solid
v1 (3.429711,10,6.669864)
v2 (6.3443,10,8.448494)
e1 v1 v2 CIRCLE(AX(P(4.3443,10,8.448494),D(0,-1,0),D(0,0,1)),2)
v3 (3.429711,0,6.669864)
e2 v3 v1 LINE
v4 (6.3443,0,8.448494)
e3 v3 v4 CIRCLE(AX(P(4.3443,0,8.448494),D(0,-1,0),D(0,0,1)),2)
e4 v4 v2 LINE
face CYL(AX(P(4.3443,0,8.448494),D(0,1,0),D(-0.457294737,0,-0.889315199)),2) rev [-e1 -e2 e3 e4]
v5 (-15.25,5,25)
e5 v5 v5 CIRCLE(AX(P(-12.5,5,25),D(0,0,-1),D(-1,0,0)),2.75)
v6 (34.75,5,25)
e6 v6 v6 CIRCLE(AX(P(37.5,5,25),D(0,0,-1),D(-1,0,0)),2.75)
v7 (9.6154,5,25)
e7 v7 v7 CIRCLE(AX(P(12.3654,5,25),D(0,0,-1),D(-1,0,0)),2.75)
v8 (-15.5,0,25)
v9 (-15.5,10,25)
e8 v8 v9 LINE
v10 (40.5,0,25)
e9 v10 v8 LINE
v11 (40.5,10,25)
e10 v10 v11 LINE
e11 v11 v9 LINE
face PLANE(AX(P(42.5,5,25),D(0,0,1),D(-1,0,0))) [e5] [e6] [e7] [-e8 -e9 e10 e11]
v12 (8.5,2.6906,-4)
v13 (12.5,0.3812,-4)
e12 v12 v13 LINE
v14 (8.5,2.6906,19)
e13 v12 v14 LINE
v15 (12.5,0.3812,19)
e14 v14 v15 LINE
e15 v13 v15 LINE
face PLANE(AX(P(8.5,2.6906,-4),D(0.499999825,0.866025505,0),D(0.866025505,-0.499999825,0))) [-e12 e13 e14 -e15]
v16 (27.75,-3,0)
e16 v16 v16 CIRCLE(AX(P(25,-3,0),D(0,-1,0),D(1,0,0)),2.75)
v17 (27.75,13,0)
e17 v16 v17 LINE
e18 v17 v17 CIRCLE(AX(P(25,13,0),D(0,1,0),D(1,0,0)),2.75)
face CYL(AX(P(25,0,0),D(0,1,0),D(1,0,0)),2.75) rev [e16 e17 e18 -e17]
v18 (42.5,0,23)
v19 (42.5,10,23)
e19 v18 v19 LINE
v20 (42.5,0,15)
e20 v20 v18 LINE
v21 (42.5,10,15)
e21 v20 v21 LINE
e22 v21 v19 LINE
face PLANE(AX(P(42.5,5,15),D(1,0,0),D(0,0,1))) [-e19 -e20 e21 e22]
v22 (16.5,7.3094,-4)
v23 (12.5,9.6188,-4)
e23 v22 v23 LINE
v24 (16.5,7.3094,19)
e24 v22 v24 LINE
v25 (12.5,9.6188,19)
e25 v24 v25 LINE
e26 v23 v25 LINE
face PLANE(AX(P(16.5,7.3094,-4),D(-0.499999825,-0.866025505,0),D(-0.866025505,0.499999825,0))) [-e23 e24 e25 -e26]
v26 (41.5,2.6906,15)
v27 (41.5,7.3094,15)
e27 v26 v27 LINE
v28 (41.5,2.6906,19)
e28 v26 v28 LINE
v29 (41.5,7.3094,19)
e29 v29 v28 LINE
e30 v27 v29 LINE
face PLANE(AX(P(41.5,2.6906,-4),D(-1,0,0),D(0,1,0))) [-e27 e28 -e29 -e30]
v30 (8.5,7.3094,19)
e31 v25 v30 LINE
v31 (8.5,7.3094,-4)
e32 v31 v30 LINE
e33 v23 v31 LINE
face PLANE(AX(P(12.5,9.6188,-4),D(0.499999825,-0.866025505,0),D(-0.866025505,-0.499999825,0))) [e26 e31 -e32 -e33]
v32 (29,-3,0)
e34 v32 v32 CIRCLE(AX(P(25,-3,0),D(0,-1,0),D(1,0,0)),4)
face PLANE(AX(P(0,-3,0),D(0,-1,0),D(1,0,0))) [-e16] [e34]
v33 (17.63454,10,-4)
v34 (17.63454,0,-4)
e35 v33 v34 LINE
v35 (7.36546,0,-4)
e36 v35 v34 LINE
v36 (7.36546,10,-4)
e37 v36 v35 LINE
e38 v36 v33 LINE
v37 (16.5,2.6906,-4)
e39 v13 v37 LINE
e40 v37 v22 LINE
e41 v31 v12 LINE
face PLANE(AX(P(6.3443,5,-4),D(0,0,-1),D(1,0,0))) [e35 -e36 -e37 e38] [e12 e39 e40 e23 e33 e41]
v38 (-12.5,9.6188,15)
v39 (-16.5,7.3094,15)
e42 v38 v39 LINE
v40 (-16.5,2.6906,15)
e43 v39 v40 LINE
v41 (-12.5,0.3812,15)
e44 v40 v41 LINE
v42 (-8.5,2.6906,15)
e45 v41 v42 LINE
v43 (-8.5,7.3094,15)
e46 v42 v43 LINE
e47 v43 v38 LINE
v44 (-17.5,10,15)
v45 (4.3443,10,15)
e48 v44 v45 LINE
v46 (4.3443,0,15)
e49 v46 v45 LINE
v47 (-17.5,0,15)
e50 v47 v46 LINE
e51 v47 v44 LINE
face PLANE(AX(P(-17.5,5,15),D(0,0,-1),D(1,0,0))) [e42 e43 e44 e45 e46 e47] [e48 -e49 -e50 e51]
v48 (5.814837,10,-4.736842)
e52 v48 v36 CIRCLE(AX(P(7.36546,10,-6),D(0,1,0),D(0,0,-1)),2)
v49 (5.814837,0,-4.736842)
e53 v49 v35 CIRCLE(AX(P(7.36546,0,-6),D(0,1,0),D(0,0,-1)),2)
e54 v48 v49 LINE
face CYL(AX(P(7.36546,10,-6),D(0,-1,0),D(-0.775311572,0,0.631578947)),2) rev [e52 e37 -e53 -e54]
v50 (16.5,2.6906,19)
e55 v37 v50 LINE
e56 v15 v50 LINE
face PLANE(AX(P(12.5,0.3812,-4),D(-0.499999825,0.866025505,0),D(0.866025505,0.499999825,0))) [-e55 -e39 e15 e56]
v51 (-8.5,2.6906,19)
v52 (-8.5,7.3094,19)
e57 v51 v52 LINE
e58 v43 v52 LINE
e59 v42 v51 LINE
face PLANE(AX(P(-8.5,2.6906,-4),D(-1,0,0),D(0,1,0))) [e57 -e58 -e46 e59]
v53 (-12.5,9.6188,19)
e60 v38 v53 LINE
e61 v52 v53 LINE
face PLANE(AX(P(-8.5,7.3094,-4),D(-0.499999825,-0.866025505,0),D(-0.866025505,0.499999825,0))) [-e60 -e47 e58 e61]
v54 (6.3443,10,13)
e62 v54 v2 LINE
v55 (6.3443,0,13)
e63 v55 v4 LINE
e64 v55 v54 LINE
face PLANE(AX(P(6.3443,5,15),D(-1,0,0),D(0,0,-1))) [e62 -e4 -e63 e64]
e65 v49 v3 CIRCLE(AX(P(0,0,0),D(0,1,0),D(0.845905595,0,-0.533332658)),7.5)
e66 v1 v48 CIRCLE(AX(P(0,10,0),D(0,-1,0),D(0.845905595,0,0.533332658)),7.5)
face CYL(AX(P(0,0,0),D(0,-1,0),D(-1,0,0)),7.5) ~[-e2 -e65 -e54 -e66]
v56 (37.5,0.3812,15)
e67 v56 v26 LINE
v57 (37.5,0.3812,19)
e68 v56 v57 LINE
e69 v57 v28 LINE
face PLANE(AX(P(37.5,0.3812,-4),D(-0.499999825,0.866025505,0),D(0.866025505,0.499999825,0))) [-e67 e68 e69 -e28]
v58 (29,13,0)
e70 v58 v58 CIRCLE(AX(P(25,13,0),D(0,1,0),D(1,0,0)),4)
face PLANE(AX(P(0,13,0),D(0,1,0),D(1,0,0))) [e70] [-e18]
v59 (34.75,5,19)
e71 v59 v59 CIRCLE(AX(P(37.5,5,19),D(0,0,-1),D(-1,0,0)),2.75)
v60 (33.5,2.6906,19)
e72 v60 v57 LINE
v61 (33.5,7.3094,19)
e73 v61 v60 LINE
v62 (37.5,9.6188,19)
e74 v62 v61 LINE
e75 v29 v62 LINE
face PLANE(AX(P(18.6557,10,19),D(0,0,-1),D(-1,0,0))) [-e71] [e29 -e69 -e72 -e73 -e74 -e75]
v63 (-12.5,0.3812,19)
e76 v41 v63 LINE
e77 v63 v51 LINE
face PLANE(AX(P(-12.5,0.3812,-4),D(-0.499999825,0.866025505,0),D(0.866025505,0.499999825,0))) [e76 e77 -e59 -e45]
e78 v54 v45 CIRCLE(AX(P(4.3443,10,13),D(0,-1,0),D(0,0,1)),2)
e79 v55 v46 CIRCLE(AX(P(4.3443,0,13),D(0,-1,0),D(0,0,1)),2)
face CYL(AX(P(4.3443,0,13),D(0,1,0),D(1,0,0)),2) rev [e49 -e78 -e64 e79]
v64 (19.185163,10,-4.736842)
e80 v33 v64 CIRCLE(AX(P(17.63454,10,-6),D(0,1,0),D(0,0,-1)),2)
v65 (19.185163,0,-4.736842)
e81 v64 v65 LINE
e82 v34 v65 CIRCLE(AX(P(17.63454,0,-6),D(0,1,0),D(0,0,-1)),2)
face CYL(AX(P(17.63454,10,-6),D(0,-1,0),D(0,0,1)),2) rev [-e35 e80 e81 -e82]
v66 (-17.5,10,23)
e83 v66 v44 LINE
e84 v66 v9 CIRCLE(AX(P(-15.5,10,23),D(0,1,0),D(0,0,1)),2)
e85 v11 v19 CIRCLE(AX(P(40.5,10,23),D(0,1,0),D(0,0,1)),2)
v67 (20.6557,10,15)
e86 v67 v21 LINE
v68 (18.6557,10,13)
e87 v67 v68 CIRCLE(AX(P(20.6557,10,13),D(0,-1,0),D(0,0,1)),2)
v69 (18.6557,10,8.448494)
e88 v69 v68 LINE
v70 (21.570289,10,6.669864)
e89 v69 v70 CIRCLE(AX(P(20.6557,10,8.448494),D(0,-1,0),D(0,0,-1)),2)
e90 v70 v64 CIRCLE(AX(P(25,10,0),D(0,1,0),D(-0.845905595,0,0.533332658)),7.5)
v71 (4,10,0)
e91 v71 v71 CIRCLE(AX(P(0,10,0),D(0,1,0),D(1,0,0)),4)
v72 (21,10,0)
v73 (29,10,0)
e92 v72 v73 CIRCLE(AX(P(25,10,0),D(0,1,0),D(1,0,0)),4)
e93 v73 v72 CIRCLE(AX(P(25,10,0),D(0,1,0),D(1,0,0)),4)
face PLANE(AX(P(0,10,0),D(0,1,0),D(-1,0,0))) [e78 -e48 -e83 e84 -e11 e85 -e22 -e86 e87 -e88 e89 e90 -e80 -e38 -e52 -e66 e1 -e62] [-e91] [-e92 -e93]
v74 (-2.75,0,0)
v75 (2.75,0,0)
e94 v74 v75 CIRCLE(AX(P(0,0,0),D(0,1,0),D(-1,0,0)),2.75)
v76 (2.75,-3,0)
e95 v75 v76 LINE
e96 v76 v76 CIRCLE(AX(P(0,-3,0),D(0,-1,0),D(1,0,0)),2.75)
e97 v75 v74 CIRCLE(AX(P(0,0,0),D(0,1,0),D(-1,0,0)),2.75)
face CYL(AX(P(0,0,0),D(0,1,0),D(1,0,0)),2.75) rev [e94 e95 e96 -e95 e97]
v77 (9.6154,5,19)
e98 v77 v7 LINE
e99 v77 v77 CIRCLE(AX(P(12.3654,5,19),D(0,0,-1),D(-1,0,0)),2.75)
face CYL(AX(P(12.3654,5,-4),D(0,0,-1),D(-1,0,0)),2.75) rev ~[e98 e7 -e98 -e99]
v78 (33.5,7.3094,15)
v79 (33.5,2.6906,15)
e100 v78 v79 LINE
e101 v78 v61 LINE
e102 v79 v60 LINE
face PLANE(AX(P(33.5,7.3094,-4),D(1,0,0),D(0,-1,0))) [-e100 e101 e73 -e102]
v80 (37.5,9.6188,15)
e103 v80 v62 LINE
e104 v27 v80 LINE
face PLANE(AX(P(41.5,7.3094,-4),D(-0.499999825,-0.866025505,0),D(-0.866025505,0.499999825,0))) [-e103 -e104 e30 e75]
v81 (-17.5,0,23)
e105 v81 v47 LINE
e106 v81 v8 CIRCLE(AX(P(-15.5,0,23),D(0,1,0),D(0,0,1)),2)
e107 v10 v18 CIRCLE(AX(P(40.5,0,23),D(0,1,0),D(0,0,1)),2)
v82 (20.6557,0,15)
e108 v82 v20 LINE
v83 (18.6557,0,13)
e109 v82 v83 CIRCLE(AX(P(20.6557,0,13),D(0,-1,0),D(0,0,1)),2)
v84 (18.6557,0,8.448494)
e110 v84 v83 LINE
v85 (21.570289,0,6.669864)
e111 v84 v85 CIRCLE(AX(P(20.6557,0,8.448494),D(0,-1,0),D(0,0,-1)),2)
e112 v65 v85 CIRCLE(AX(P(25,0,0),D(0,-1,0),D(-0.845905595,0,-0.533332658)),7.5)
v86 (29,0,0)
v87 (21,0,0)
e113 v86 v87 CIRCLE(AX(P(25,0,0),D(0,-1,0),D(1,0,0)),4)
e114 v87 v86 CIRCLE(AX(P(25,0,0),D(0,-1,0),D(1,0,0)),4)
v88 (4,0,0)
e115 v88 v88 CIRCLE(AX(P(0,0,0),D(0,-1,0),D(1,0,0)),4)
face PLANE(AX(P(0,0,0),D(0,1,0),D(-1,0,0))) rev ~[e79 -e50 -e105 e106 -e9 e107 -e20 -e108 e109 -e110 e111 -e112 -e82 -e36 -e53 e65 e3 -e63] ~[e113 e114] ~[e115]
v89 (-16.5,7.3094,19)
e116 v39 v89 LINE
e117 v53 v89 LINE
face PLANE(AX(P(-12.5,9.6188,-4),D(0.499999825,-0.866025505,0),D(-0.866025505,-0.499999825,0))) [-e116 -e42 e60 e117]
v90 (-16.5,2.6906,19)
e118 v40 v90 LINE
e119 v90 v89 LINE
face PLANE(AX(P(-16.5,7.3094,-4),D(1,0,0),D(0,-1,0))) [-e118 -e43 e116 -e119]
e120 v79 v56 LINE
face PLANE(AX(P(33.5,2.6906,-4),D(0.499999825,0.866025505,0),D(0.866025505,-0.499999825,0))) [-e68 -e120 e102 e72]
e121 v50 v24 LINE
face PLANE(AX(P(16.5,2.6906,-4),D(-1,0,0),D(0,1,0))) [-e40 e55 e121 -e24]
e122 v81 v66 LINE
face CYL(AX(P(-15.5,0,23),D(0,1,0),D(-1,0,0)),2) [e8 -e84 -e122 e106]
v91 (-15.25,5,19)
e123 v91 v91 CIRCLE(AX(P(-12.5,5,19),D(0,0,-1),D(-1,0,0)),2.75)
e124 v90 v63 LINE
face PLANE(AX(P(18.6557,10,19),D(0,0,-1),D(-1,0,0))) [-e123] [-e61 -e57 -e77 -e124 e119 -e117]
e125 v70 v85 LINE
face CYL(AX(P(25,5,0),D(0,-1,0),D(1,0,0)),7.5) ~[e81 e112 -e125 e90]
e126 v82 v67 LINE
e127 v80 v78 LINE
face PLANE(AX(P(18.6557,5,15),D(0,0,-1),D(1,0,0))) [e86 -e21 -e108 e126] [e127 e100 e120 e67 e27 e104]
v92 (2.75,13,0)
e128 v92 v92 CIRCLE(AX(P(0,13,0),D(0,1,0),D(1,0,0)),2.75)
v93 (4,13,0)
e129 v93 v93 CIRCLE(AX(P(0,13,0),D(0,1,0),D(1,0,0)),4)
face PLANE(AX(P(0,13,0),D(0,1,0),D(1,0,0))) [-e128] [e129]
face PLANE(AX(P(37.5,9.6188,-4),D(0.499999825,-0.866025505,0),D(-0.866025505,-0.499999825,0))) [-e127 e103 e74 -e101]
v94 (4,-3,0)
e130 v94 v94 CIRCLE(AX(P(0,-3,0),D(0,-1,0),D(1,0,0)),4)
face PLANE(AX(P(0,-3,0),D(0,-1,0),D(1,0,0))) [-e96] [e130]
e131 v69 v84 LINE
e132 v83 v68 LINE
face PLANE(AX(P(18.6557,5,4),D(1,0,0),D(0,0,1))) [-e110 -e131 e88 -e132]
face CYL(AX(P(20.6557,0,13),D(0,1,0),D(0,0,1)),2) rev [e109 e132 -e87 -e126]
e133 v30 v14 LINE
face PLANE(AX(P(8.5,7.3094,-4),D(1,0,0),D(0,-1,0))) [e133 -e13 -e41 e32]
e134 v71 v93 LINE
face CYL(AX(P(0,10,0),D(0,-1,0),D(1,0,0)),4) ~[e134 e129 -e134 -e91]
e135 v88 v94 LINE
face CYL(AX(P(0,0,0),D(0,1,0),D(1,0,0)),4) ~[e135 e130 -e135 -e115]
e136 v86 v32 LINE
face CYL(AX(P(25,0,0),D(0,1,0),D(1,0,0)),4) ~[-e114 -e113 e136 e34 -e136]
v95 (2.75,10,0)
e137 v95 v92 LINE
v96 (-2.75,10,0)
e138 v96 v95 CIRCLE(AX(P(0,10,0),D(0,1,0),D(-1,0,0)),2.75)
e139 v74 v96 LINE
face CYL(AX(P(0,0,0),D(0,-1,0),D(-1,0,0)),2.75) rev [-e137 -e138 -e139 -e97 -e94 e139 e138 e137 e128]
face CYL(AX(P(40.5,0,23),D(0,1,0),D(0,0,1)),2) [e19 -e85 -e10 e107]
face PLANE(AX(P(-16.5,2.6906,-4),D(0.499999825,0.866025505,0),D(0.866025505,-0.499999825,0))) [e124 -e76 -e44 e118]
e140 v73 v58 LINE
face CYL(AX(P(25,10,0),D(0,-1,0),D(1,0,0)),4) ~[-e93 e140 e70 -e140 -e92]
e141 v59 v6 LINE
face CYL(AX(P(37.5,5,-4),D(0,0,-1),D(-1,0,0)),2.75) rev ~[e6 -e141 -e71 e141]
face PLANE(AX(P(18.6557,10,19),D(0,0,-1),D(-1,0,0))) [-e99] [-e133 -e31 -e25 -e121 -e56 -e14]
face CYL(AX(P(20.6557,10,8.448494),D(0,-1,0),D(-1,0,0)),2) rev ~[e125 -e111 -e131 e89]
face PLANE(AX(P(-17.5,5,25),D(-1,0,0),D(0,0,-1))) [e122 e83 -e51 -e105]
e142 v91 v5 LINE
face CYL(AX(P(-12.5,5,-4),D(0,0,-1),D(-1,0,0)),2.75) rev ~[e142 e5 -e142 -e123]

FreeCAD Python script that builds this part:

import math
import FreeCAD as App
import Part
import Sketcher
Q = App.Units.Quantity


def edges_at(feature, points):
    """Names of the edges that pass closest to the given points."""
    edges = feature.Shape.Edges
    near = lambda p: min(range(len(edges)), key=lambda i: edges[i].distToShape(Part.Vertex(*p))[0])
    return sorted({f"Edge{near(p) + 1}" for p in points})


def add_polygon(sketch, points):
    """Adds a closed chain of lines whose ends are joined by coincident constraints."""
    first, n = sketch.GeometryCount, len(points)
    for a, b in zip(points, points[1:] + points[:1]):
        sketch.addGeometry(Part.LineSegment(App.Vector(*a, 0), App.Vector(*b, 0)), False)
    for i in range(n):
        sketch.addConstraint(Sketcher.Constraint("Coincident", first + i, 2, first + (i + 1) % n, 1))

doc = App.newDocument("Part")
body = doc.addObject("PartDesign::Body", "Body")

# Sketch on XZ plane
sketch1 = body.newObject("Sketcher::SketchObject", "Sketch")
sketch1.AttachmentSupport = (doc.getObject("XZ_Plane"), [""])
sketch1.MapMode = "FlatFace"
sketch1.addGeometry([
    Part.Circle(App.Vector(0, 0, 0), App.Vector(0, 0, 1), 7.5),
    Part.Circle(App.Vector(0, 0, 0), App.Vector(0, 0, 1), 2.8),
], False)
sketch1.addConstraint([
    Sketcher.Constraint("Coincident", 0, 3, -1, 1),
    Sketcher.Constraint("Coincident", 1, 3, -1, 1),
    Sketcher.Constraint("Diameter", 0, 15.0),
    Sketcher.Constraint("Diameter", 1, 5.5),
])
pad1 = body.newObject("PartDesign::Pad", "Pad")
pad1.Profile = sketch1
pad1.Length = 10
pad1.Reversed = True

# Sketch on XZ plane
sketch2 = body.newObject("Sketcher::SketchObject", "Sketch001")
sketch2.AttachmentSupport = (doc.getObject("XZ_Plane"), [""])
sketch2.MapMode = "FlatFace"
sketch2.AttachmentOffset = App.Placement(App.Vector(0, 0, -5), App.Rotation())
sketch2.addGeometry([
    Part.ArcOfCircle(Part.Circle(App.Vector(0, 0, 0), App.Vector(0, 0, 1), 7.5), math.radians(-32), math.radians(32)),  # 0
    Part.LineSegment(App.Vector(6.3, 4, 0), App.Vector(6.3, 15, 0)),  # 1
    Part.LineSegment(App.Vector(6.3, 15, 0), App.Vector(-17.5, 15, 0)),  # 2
    Part.LineSegment(App.Vector(-17.5, 15, 0), App.Vector(-17.5, 25, 0)),  # 3
    Part.LineSegment(App.Vector(-17.5, 25, 0), App.Vector(42.5, 25, 0)),  # 4
    Part.LineSegment(App.Vector(42.5, 25, 0), App.Vector(42.5, 15, 0)),  # 5
    Part.LineSegment(App.Vector(42.5, 15, 0), App.Vector(18.7, 15, 0)),  # 6
    Part.LineSegment(App.Vector(18.7, 15, 0), App.Vector(18.7, 4, 0)),  # 7
    Part.ArcOfCircle(Part.Circle(App.Vector(25, 0, 0), App.Vector(0, 0, 1), 7.5), math.radians(-148), math.radians(148)),  # 8
    Part.LineSegment(App.Vector(18.7, -4, 0), App.Vector(6.3, -4, 0)),  # 9
    Part.Circle(App.Vector(25, 0, 0), App.Vector(0, 0, 1), 2.8),  # 10
], False)
sketch2.addConstraint([
    Sketcher.Constraint("Coincident", 0, 2, 1, 1),
    Sketcher.Constraint("Coincident", 1, 2, 2, 1),
    Sketcher.Constraint("Coincident", 2, 2, 3, 1),
    Sketcher.Constraint("Coincident", 3, 2, 4, 1),
    Sketcher.Constraint("Coincident", 4, 2, 5, 1),
    Sketcher.Constraint("Coincident", 5, 2, 6, 1),
    Sketcher.Constraint("Coincident", 6, 2, 7, 1),
    Sketcher.Constraint("Coincident", 7, 2, 8, 2),
    Sketcher.Constraint("Coincident", 8, 1, 9, 1),
    Sketcher.Constraint("Coincident", 9, 2, 0, 1),
    Sketcher.Constraint("Vertical", 1),
    Sketcher.Constraint("Horizontal", 2),
    Sketcher.Constraint("Vertical", 3),
    Sketcher.Constraint("Horizontal", 4),
    Sketcher.Constraint("Vertical", 5),
    Sketcher.Constraint("Horizontal", 6),
    Sketcher.Constraint("Vertical", 7),
    Sketcher.Constraint("Horizontal", 9),
    Sketcher.Constraint("Coincident", 0, 3, -1, 1),
    Sketcher.Constraint("Coincident", 10, 3, 8, 3),
    Sketcher.Constraint("Equal", 0, 8),
    Sketcher.Constraint("Symmetric", 7, 2, 8, 1, -1),
    Sketcher.Constraint("Horizontal", 2, 2, 5, 2),
    Sketcher.Constraint("Horizontal", 0, 2, 7, 2),
    Sketcher.Constraint("Equal", 2, 6),
    Sketcher.Constraint("Diameter", 10, 5.5),
    Sketcher.Constraint("Radius", 0, 7.5),
    Sketcher.Constraint("DistanceX", 4, 1, 4, 2, 60.0),
    Sketcher.Constraint("DistanceY", 3, 1, 3, 2, 10.0),
    Sketcher.Constraint("DistanceX", -1, 1, 8, 3, 25.0),
    Sketcher.Constraint("DistanceY", -1, 1, 1, 2, 15.0),
    Sketcher.Constraint("DistanceY", 8, 1, 7, 2, 8.0),
])
pad2 = body.newObject("PartDesign::Pad", "Pad001")
pad2.Profile = sketch2
pad2.Length = 10
pad2.Midplane = True

# Sketch on XY plane
sketch3 = body.newObject("Sketcher::SketchObject", "Sketch002")
sketch3.AttachmentSupport = (doc.getObject("XY_Plane"), [""])
sketch3.MapMode = "FlatFace"
sketch3.AttachmentOffset = App.Placement(App.Vector(0, 0, -4), App.Rotation())
add_polygon(sketch3, [(16.5, 2.7), (12.5, 0.4), (8.5, 2.7), (8.5, 7.3), (12.5, 9.6), (16.5, 7.3)])  # lines 0-5
add_polygon(sketch3, [(-8.5, 2.7), (-12.5, 0.4), (-16.5, 2.7), (-16.5, 7.3), (-12.5, 9.6), (-8.5, 7.3)])  # lines 6-11
add_polygon(sketch3, [(41.5, 2.7), (37.5, 0.4), (33.5, 2.7), (33.5, 7.3), (37.5, 9.6), (41.5, 7.3)])  # lines 12-17
sketch3.addConstraint([
    Sketcher.Constraint("Vertical", 2),
    Sketcher.Constraint("Vertical", 5),
    Sketcher.Constraint("Vertical", 8),
    Sketcher.Constraint("Vertical", 11),
    Sketcher.Constraint("Vertical", 14),
    Sketcher.Constraint("Vertical", 17),
    Sketcher.Constraint("Symmetric", 0, 2, 6, 2, -2),
    Sketcher.Constraint("Symmetric", 5, 2, 7, 2, -2),
    Sketcher.Constraint("Symmetric", 3, 2, 9, 2, -2),
    Sketcher.Constraint("Symmetric", 2, 2, 10, 2, -2),
    Sketcher.Constraint("Parallel", 0, 3),
    Sketcher.Constraint("Parallel", 1, 4),
    Sketcher.Constraint("Parallel", 3, 6),
    Sketcher.Constraint("Parallel", 4, 7),
    Sketcher.Constraint("Parallel", 6, 9),
    Sketcher.Constraint("Parallel", 9, 12),
    Sketcher.Constraint("Parallel", 10, 13),
    Sketcher.Constraint("Parallel", 12, 15),
    Sketcher.Constraint("Parallel", 13, 16),
    Sketcher.Constraint("Horizontal", 2, 2, 4, 2),
    Sketcher.Constraint("Horizontal", 1, 2, 5, 2),
    Sketcher.Constraint("Horizontal", 6, 2, 12, 2),
    Sketcher.Constraint("Horizontal", 11, 2, 13, 2),
    Sketcher.Constraint("Horizontal", 10, 2, 14, 2),
    Sketcher.Constraint("Horizontal", 9, 2, 15, 2),
    Sketcher.Constraint("Horizontal", 14, 2, 16, 2),
    Sketcher.Constraint("DistanceX", 2, 2, 4, 2, 8.0),
    Sketcher.Constraint("Angle", 0, Q("-150 deg")),
    Sketcher.Constraint("DistanceX", 6, 2, 1, 2, 21.0),
    Sketcher.Constraint("DistanceX", 5, 2, 12, 2, 21.0),
    Sketcher.Constraint("DistanceY", 2, 1, 2, 2, 4.6188),
    Sketcher.Constraint("DistanceY", -1, 1, 0, 2, 0.3812),
])
pocket1 = body.newObject("PartDesign::Pocket", "Pocket")
pocket1.Profile = sketch3
pocket1.Length = 23
pocket1.Reversed = True
doc.recompute()

fillet = body.newObject("PartDesign::Fillet", "Fillet")
fillet.Base = (pocket1, edges_at(pocket1, [
    (18.656, 5, 15),
    (6.344, 5, 15),
    (-17.5, 5, 25),
    (42.5, 5, 25),
    (6.344, 5, -4),
    (18.656, 5, -4),
    (18.656, 5, 4),
    (6.344, 5, 4),
]))
fillet.Radius = 2

# Sketch on XY plane
sketch4 = body.newObject("Sketcher::SketchObject", "Sketch003")
sketch4.AttachmentSupport = (doc.getObject("XY_Plane"), [""])
sketch4.MapMode = "FlatFace"
sketch4.AttachmentOffset = App.Placement(App.Vector(0, 0, -4), App.Rotation())
sketch4.addGeometry([
    Part.Circle(App.Vector(12.4, 5, 0), App.Vector(0, 0, 1), 2.8),
    Part.Circle(App.Vector(37.5, 5, 0), App.Vector(0, 0, 1), 2.8),
    Part.Circle(App.Vector(-12.5, 5, 0), App.Vector(0, 0, 1), 2.8),
], False)
sketch4.addConstraint([
    Sketcher.Constraint("Equal", 0, 1),
    Sketcher.Constraint("Equal", 1, 2),
    Sketcher.Constraint("Horizontal", 0, 3, 1, 3),
    Sketcher.Constraint("Horizontal", 1, 3, 2, 3),
    Sketcher.Constraint("Diameter", 0, 5.5),
    Sketcher.Constraint("DistanceY", -1, 1, 0, 3, 5.0),
    Sketcher.Constraint("DistanceX", 2, 3, 1, 3, 50.0),
    Sketcher.Constraint("DistanceX", -1, 1, 1, 3, 37.5),
    Sketcher.Constraint("DistanceX", -1, 1, 0, 3, 12.3654),
])
pocket2 = body.newObject("PartDesign::Pocket", "Pocket001")
pocket2.Profile = sketch4
pocket2.Type = "ThroughAll"
pocket2.Reversed = True

# Sketch on XZ plane
sketch5 = body.newObject("Sketcher::SketchObject", "Sketch004")
sketch5.AttachmentSupport = (doc.getObject("XZ_Plane"), [""])
sketch5.MapMode = "FlatFace"
sketch5.AttachmentOffset = App.Placement(App.Vector(0, 0, -10), App.Rotation())
sketch5.addGeometry([
    Part.Circle(App.Vector(0, 0, 0), App.Vector(0, 0, 1), 4),
    Part.Circle(App.Vector(0, 0, 0), App.Vector(0, 0, 1), 2.8),
    Part.Circle(App.Vector(25, 0, 0), App.Vector(0, 0, 1), 4),
    Part.Circle(App.Vector(25, 0, 0), App.Vector(0, 0, 1), 2.8),
], False)
sketch5.addConstraint([
    Sketcher.Constraint("Coincident", 0, 3, -1, 1),
    Sketcher.Constraint("Coincident", 1, 3, -1, 1),
    Sketcher.Constraint("Coincident", 3, 3, 2, 3),
    Sketcher.Constraint("Equal", 0, 2),
    Sketcher.Constraint("Equal", 1, 3),
    Sketcher.Constraint("PointOnObject", 2, 3, -1),
    Sketcher.Constraint("Diameter", 0, 8.0),
    Sketcher.Constraint("Diameter", 1, 5.5),
    Sketcher.Constraint("DistanceX", -1, 1, 2, 3, 25.0),
])
pad3 = body.newObject("PartDesign::Pad", "Pad002")
pad3.Profile = sketch5
pad3.Length = 3
pad3.Reversed = True

# Sketch on XZ plane
sketch6 = body.newObject("Sketcher::SketchObject", "Sketch005")
sketch6.AttachmentSupport = (doc.getObject("XZ_Plane"), [""])
sketch6.MapMode = "FlatFace"
sketch6.addGeometry([
    Part.Circle(App.Vector(25, 0, 0), App.Vector(0, 0, 1), 4),
    Part.Circle(App.Vector(25, 0, 0), App.Vector(0, 0, 1), 2.8),
    Part.Circle(App.Vector(0, 0, 0), App.Vector(0, 0, 1), 4),
    Part.Circle(App.Vector(0, 0, 0), App.Vector(0, 0, 1), 2.8),
], False)
sketch6.addConstraint([
    Sketcher.Constraint("Coincident", 2, 3, -1, 1),
    Sketcher.Constraint("Coincident", 3, 3, -1, 1),
    Sketcher.Constraint("Coincident", 1, 3, 0, 3),
    Sketcher.Constraint("Equal", 0, 2),
    Sketcher.Constraint("Equal", 1, 3),
    Sketcher.Constraint("PointOnObject", 0, 3, -1),
    Sketcher.Constraint("Diameter", 0, 8.0),
    Sketcher.Constraint("Diameter", 1, 5.5),
    Sketcher.Constraint("DistanceX", -1, 1, 0, 3, 25.0),
])
pad4 = body.newObject("PartDesign::Pad", "Pad003")
pad4.Profile = sketch6
pad4.Length = 3

doc.recompute()
